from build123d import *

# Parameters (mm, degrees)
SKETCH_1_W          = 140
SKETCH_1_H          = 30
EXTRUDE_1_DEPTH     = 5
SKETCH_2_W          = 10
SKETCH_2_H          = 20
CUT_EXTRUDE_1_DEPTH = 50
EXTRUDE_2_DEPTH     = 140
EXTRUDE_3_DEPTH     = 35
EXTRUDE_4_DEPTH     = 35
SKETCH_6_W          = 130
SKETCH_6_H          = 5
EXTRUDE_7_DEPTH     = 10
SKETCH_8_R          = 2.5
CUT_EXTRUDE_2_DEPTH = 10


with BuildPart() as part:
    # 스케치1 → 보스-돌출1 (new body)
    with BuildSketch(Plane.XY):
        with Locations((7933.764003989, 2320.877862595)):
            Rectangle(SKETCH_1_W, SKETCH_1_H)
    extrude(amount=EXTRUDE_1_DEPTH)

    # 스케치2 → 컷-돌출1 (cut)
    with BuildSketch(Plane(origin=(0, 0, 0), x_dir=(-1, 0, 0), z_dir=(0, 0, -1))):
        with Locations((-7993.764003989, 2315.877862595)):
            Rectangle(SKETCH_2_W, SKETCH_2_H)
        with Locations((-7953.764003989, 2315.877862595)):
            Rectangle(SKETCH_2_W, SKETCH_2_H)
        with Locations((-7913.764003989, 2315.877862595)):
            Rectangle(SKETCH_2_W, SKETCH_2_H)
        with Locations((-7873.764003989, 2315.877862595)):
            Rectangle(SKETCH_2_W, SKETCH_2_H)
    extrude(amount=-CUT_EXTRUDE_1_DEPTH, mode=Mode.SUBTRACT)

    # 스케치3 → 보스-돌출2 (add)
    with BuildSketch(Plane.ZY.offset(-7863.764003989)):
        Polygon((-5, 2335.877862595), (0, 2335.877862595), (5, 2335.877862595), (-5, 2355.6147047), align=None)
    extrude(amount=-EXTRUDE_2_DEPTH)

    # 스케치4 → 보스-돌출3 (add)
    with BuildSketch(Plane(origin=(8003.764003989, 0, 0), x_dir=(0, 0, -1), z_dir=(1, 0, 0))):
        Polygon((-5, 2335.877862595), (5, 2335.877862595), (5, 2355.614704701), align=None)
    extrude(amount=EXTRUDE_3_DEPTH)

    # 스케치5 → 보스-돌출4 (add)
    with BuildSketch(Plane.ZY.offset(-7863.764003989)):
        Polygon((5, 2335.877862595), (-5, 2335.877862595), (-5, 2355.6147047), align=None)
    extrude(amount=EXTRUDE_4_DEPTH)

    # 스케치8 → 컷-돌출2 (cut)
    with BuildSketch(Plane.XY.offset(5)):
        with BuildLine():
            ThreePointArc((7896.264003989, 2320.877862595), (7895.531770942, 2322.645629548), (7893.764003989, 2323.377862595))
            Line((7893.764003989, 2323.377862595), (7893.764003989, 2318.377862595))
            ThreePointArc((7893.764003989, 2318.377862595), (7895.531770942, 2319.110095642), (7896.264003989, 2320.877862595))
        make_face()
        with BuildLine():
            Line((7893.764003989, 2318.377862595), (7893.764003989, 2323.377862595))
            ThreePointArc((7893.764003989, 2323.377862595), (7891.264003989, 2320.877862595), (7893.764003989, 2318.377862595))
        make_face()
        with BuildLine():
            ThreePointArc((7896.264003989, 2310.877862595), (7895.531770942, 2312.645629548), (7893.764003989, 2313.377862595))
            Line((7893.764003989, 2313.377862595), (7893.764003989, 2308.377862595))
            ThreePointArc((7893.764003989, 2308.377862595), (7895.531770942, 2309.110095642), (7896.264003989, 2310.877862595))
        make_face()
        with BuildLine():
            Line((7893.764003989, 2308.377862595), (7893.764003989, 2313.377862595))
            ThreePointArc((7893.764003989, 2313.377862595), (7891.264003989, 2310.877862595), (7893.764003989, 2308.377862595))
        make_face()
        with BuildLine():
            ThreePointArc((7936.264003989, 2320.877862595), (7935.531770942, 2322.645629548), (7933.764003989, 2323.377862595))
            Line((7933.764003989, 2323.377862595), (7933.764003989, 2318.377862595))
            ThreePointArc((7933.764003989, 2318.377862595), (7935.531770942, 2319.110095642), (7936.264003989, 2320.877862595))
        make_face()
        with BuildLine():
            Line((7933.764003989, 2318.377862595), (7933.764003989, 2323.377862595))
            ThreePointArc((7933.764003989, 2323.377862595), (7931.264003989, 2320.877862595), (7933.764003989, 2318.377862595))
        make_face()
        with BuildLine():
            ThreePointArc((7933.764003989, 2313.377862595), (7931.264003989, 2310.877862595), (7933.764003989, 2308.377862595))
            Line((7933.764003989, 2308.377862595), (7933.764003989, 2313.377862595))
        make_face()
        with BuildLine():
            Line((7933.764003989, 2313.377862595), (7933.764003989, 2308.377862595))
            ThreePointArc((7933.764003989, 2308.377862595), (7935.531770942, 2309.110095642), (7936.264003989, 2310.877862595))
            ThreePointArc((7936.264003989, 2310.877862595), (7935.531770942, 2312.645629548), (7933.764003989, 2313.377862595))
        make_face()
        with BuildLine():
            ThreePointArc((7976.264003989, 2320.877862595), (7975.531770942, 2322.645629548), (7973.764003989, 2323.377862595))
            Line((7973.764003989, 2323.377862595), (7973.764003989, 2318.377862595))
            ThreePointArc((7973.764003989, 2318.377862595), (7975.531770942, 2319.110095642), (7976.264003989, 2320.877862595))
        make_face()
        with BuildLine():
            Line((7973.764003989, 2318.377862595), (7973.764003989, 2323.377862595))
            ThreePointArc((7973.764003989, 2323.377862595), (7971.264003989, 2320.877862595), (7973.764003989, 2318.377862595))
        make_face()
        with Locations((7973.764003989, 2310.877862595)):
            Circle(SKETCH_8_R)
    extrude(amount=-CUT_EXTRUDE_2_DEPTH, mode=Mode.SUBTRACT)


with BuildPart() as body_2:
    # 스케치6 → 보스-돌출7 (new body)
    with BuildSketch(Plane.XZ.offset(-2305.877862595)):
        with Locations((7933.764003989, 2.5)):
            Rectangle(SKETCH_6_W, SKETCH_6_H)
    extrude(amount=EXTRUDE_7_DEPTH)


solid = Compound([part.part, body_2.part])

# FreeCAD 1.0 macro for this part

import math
import FreeCAD as App
import Part
import Sketcher


def add_polygon(sketch, points):
    """Adds a closed chain of lines whose ends are joined by coincident constraints."""
    first, n = sketch.GeometryCount, len(points)
    for a, b in zip(points, points[1:] + points[:1]):
        sketch.addGeometry(Part.LineSegment(App.Vector(*a, 0), App.Vector(*b, 0)), False)
    for i in range(n):
        sketch.addConstraint(Sketcher.Constraint("Coincident", first + i, 2, first + (i + 1) % n, 1))

doc = App.newDocument("Part")
params = doc.addObject("Spreadsheet::Sheet", "Params")
for row, (alias, value) in enumerate([
    ("sketch1_width", "140 mm"),
    ("sketch1_height", "30 mm"),
    ("pad1_length", "5 mm"),
    ("sketch2_width", "10 mm"),
    ("sketch2_height", "20 mm"),
    ("pocket1_length", "50 mm"),
    ("sketch3_height", "10 mm"),
    ("pad2_length", "140 mm"),
    ("sketch4_height", "10 mm"),
    ("pad3_length", "35 mm"),
    ("sketch5_height", "10 mm"),
    ("pad4_length", "35 mm"),
    ("sketch6_diameter", "5 mm"),
    ("pocket2_length", "10 mm"),
    ("sketch7_width", "130 mm"),
    ("sketch7_height", "5 mm"),
    ("pad5_length", "10 mm"),
], start=1):
    params.set(f"A{row}", alias)
    params.set(f"B{row}", "=" + value)
    params.setAlias(f"B{row}", alias)

body = doc.addObject("PartDesign::Body", "Body")

sketch1 = doc.addObject("Sketcher::SketchObject", "Sketch")
body.addObject(sketch1)
sketch1.AttachmentSupport = (doc.XY_Plane, [""])
sketch1.MapMode = "FlatFace"
add_polygon(sketch1, [(7864, 2336), (7864, 2306), (8004, 2306), (8004, 2336)])
sketch1.addConstraint([
    Sketcher.Constraint("Vertical", 0),
    Sketcher.Constraint("Horizontal", 1),
    Sketcher.Constraint("Vertical", 2),
    Sketcher.Constraint("Horizontal", 3),
    Sketcher.Constraint("DistanceX", 1, 1, 1, 2, 140.0),
    Sketcher.Constraint("DistanceY", 0, 2, 0, 1, 30.0),
    Sketcher.Constraint("DistanceX", -1, 1, 0, 2, 7863.764004),
    Sketcher.Constraint("DistanceY", -1, 1, 0, 2, 2305.877863),
])
sketch1.setExpression("Constraints[8]", "Params.sketch1_width")
sketch1.setExpression("Constraints[9]", "Params.sketch1_height")
pad1 = doc.addObject("PartDesign::Pad", "Pad")
body.addObject(pad1)
pad1.Profile = sketch1
pad1.setExpression("Length", "Params.pad1_length")

sketch2 = doc.addObject("Sketcher::SketchObject", "Sketch001")
body.addObject(sketch2)
sketch2.AttachmentSupport = (doc.XY_Plane, [""])
sketch2.MapMode = "FlatFace"
add_polygon(sketch2, [(7999, 2326), (7999, 2306), (7989, 2306), (7989, 2326)])
add_polygon(sketch2, [(7959, 2326), (7959, 2306), (7949, 2306), (7949, 2326)])
add_polygon(sketch2, [(7919, 2326), (7919, 2306), (7909, 2306), (7909, 2326)])
add_polygon(sketch2, [(7879, 2326), (7879, 2306), (7869, 2306), (7869, 2326)])
sketch2.addConstraint([
    Sketcher.Constraint("Vertical", 0),
    Sketcher.Constraint("Horizontal", 1),
    Sketcher.Constraint("Vertical", 2),
    Sketcher.Constraint("Horizontal", 3),
    Sketcher.Constraint("Vertical", 4),
    Sketcher.Constraint("Horizontal", 5),
    Sketcher.Constraint("Vertical", 6),
    Sketcher.Constraint("Horizontal", 7),
    Sketcher.Constraint("Vertical", 8),
    Sketcher.Constraint("Horizontal", 9),
    Sketcher.Constraint("Vertical", 10),
    Sketcher.Constraint("Horizontal", 11),
    Sketcher.Constraint("Vertical", 12),
    Sketcher.Constraint("Horizontal", 13),
    Sketcher.Constraint("Vertical", 14),
    Sketcher.Constraint("Horizontal", 15),
    Sketcher.Constraint("Horizontal", 1, 2, 4, 2),
    Sketcher.Constraint("Horizontal", 3, 2, 6, 2),
    Sketcher.Constraint("Horizontal", 5, 2, 8, 2),
    Sketcher.Constraint("Horizontal", 7, 2, 10, 2),
    Sketcher.Constraint("Horizontal", 9, 2, 12, 2),
    Sketcher.Constraint("Horizontal", 11, 2, 14, 2),
    Sketcher.Constraint("Equal", 3, 5),
    Sketcher.Constraint("Equal", 7, 9),
    Sketcher.Constraint("Equal", 11, 13),
    Sketcher.Constraint("DistanceX", 1, 2, 1, 1, 10.0),
    Sketcher.Constraint("DistanceY", 0, 2, 0, 1, 20.0),
    Sketcher.Constraint("DistanceX", 4, 2, 1, 2, 30.0),
    Sketcher.Constraint("DistanceX", 8, 2, 5, 2, 30.0),
    Sketcher.Constraint("DistanceX", 12, 2, 9, 2, 30.0),
    Sketcher.Constraint("DistanceX", -1, 1, 0, 2, 7998.764004),
    Sketcher.Constraint("DistanceY", -1, 1, 0, 2, 2305.877863),
])
sketch2.setExpression("Constraints[41]", "Params.sketch2_width")
sketch2.setExpression("Constraints[42]", "Params.sketch2_height")
pocket1 = doc.addObject("PartDesign::Pocket", "Pocket")
body.addObject(pocket1)
pocket1.Profile = sketch2
pocket1.setExpression("Length", "Params.pocket1_length")
pocket1.Reversed = True

sketch3 = doc.addObject("Sketcher::SketchObject", "Sketch002")
body.addObject(sketch3)
sketch3.AttachmentSupport = (doc.YZ_Plane, [""])
sketch3.MapMode = "FlatFace"
sketch3.AttachmentOffset = App.Placement(App.Vector(0, 0, 7863.764004), App.Rotation())
add_polygon(sketch3, [(2336, -5), (2336, 5), (2356, -5)])
sketch3.addConstraint([
    Sketcher.Constraint("Vertical", 0),
    Sketcher.Constraint("Horizontal", 2),
    Sketcher.Constraint("DistanceY", 0, 1, 0, 2, 10.0),
    Sketcher.Constraint("DistanceY", -1, 1, 0, 2, 5.0),
    Sketcher.Constraint("DistanceX", 2, 2, 2, 1, 19.736842),
    Sketcher.Constraint("DistanceX", -1, 1, 0, 2, 2335.877863),
])
sketch3.setExpression("Constraints[5]", "Params.sketch3_height")
pad2 = doc.addObject("PartDesign::Pad", "Pad001")
body.addObject(pad2)
pad2.Profile = sketch3
pad2.setExpression("Length", "Params.pad2_length")

sketch4 = doc.addObject("Sketcher::SketchObject", "Sketch003")
body.addObject(sketch4)
sketch4.AttachmentSupport = (doc.YZ_Plane, [""])
sketch4.MapMode = "FlatFace"
sketch4.AttachmentOffset = App.Placement(App.Vector(0, 0, 8003.764004), App.Rotation())
add_polygon(sketch4, [(2336, 5), (2336, -5), (2356, -5)])
sketch4.addConstraint([
    Sketcher.Constraint("Vertical", 0),
    Sketcher.Constraint("Horizontal", 1),
    Sketcher.Constraint("DistanceY", 0, 2, 0, 1, 10.0),
    Sketcher.Constraint("DistanceY", 0, 2, -1, 1, 5.0),
    Sketcher.Constraint("DistanceX", 1, 1, 1, 2, 19.736842),
    Sketcher.Constraint("DistanceX", -1, 1, 0, 2, 2335.877863),
])
sketch4.setExpression("Constraints[5]", "Params.sketch4_height")
pad3 = doc.addObject("PartDesign::Pad", "Pad002")
body.addObject(pad3)
pad3.Profile = sketch4
pad3.setExpression("Length", "Params.pad3_length")

sketch5 = doc.addObject("Sketcher::SketchObject", "Sketch004")
body.addObject(sketch5)
sketch5.AttachmentSupport = (doc.YZ_Plane, [""])
sketch5.MapMode = "FlatFace"
sketch5.AttachmentOffset = App.Placement(App.Vector(0, 0, 7863.764004), App.Rotation())
add_polygon(sketch5, [(2336, -5), (2336, 5), (2356, -5)])
sketch5.addConstraint([
    Sketcher.Constraint("Vertical", 0),
    Sketcher.Constraint("Horizontal", 2),
    Sketcher.Constraint("DistanceY", 0, 1, 0, 2, 10.0),
    Sketcher.Constraint("DistanceY", -1, 1, 0, 2, 5.0),
    Sketcher.Constraint("DistanceX", 2, 2, 2, 1, 19.736842),
    Sketcher.Constraint("DistanceX", -1, 1, 0, 2, 2335.877863),
])
sketch5.setExpression("Constraints[5]", "Params.sketch5_height")
pad4 = doc.addObject("PartDesign::Pad", "Pad003")
body.addObject(pad4)
pad4.Profile = sketch5
pad4.setExpression("Length", "Params.pad4_length")
pad4.Reversed = True

sketch6 = doc.addObject("Sketcher::SketchObject", "Sketch005")
body.addObject(sketch6)
sketch6.AttachmentSupport = (doc.XY_Plane, [""])
sketch6.MapMode = "FlatFace"
sketch6.AttachmentOffset = App.Placement(App.Vector(0, 0, 5), App.Rotation())
sketch6.addGeometry([
    Part.ArcOfCircle(Part.Circle(App.Vector(7893.8, 2320.9, 0), App.Vector(0, 0, 1), 2.5), math.radians(0), math.radians(90)),
    Part.ArcOfCircle(Part.Circle(App.Vector(7893.8, 2320.9, 0), App.Vector(0, 0, 1), 2.5), math.radians(90), math.radians(270)),
    Part.ArcOfCircle(Part.Circle(App.Vector(7893.8, 2320.9, 0), App.Vector(0, 0, 1), 2.5), math.radians(-90), math.radians(0)),
    Part.ArcOfCircle(Part.Circle(App.Vector(7893.8, 2310.9, 0), App.Vector(0, 0, 1), 2.5), math.radians(0), math.radians(90)),
    Part.ArcOfCircle(Part.Circle(App.Vector(7893.8, 2310.9, 0), App.Vector(0, 0, 1), 2.5), math.radians(90), math.radians(270)),
    Part.ArcOfCircle(Part.Circle(App.Vector(7893.8, 2310.9, 0), App.Vector(0, 0, 1), 2.5), math.radians(-90), math.radians(0)),
    Part.ArcOfCircle(Part.Circle(App.Vector(7933.8, 2320.9, 0), App.Vector(0, 0, 1), 2.5), math.radians(0), math.radians(90)),
    Part.ArcOfCircle(Part.Circle(App.Vector(7933.8, 2320.9, 0), App.Vector(0, 0, 1), 2.5), math.radians(90), math.radians(270)),
    Part.ArcOfCircle(Part.Circle(App.Vector(7933.8, 2320.9, 0), App.Vector(0, 0, 1), 2.5), math.radians(-90), math.radians(0)),
    Part.ArcOfCircle(Part.Circle(App.Vector(7933.8, 2310.9, 0), App.Vector(0, 0, 1), 2.5), math.radians(90), math.radians(270)),
    Part.ArcOfCircle(Part.Circle(App.Vector(7933.8, 2310.9, 0), App.Vector(0, 0, 1), 2.5), math.radians(-90), math.radians(0)),
    Part.ArcOfCircle(Part.Circle(App.Vector(7933.8, 2310.9, 0), App.Vector(0, 0, 1), 2.5), math.radians(0), math.radians(90)),
    Part.ArcOfCircle(Part.Circle(App.Vector(7973.8, 2320.9, 0), App.Vector(0, 0, 1), 2.5), math.radians(0), math.radians(90)),
    Part.ArcOfCircle(Part.Circle(App.Vector(7973.8, 2320.9, 0), App.Vector(0, 0, 1), 2.5), math.radians(90), math.radians(270)),
    Part.ArcOfCircle(Part.Circle(App.Vector(7973.8, 2320.9, 0), App.Vector(0, 0, 1), 2.5), math.radians(-90), math.radians(0)),
    Part.Circle(App.Vector(7973.8, 2310.9, 0), App.Vector(0, 0, 1), 2.5),
], False)
sketch6.addConstraint([
    Sketcher.Constraint("Tangent", 0, 2, 1, 1),
    Sketcher.Constraint("Tangent", 1, 2, 2, 1),
    Sketcher.Constraint("Tangent", 2, 2, 0, 1),
    Sketcher.Constraint("Tangent", 3, 2, 4, 1),
    Sketcher.Constraint("Tangent", 4, 2, 5, 1),
    Sketcher.Constraint("Tangent", 5, 2, 3, 1),
    Sketcher.Constraint("Tangent", 6, 2, 7, 1),
    Sketcher.Constraint("Tangent", 7, 2, 8, 1),
    Sketcher.Constraint("Tangent", 8, 2, 6, 1),
    Sketcher.Constraint("Tangent", 9, 2, 10, 1),
    Sketcher.Constraint("Tangent", 10, 2, 11, 1),
    Sketcher.Constraint("Tangent", 11, 2, 9, 1),
    Sketcher.Constraint("Tangent", 12, 2, 13, 1),
    Sketcher.Constraint("Tangent", 13, 2, 14, 1),
    Sketcher.Constraint("Tangent", 14, 2, 12, 1),
    Sketcher.Constraint("Equal", 2, 3),
    Sketcher.Constraint("Equal", 5, 6),
    Sketcher.Constraint("Equal", 8, 9),
    Sketcher.Constraint("Equal", 11, 12),
    Sketcher.Constraint("Equal", 14, 15),
    Sketcher.Constraint("Horizontal", 2, 3, 6, 3),
    Sketcher.Constraint("Horizontal", 5, 3, 9, 3),
    Sketcher.Constraint("Horizontal", 8, 3, 12, 3),
    Sketcher.Constraint("Horizontal", 11, 3, 15, 3),
    Sketcher.Constraint("Horizontal", 14, 3, 2, 2),
    Sketcher.Constraint("Horizontal", 15, 3, 5, 2),
    Sketcher.Constraint("Horizontal", 2, 2, 8, 2),
    Sketcher.Constraint("Horizontal", 5, 2, 10, 2),
    Sketcher.Constraint("Horizontal", 8, 2, 14, 2),
    Sketcher.Constraint("Vertical", 2, 3, 3, 3),
    Sketcher.Constraint("Vertical", 8, 3, 9, 3),
    Sketcher.Constraint("Vertical", 14, 3, 15, 3),
    Sketcher.Constraint("Vertical", 5, 3, 0, 2),
    Sketcher.Constraint("Vertical", 0, 2, 1, 2),
    Sketcher.Constraint("Vertical", 1, 2, 3, 2),
    Sketcher.Constraint("Vertical", 3, 2, 4, 2),
    Sketcher.Constraint("Vertical", 11, 3, 6, 2),
    Sketcher.Constraint("Vertical", 6, 2, 7, 2),
    Sketcher.Constraint("Vertical", 7, 2, 9, 2),
    Sketcher.Constraint("Vertical", 9, 2, 11, 2),
    Sketcher.Constraint("Vertical", 15, 3, 12, 2),
    Sketcher.Constraint("Vertical", 12, 2, 13, 2),
    Sketcher.Constraint("Diameter", 15, 5.0),
    Sketcher.Constraint("DistanceY", 3, 3, 0, 3, 10.0),
    Sketcher.Constraint("DistanceX", 0, 3, 6, 3, 40.0),
    Sketcher.Constraint("DistanceX", 6, 3, 12, 3, 40.0),
    Sketcher.Constraint("DistanceX", -1, 1, 0, 3, 7893.764004),
    Sketcher.Constraint("DistanceY", -1, 1, 0, 3, 2320.877863),
])
sketch6.setExpression("Constraints[42]", "Params.sketch6_diameter")
pocket2 = doc.addObject("PartDesign::Pocket", "Pocket001")
body.addObject(pocket2)
pocket2.Profile = sketch6
pocket2.setExpression("Length", "Params.pocket2_length")
body2 = doc.addObject("PartDesign::Body", "Body001")

sketch7 = doc.addObject("Sketcher::SketchObject", "Sketch006")
body2.addObject(sketch7)
sketch7.AttachmentSupport = (doc.getObject("XZ_Plane001"), [""])
sketch7.MapMode = "FlatFace"
sketch7.AttachmentOffset = App.Placement(App.Vector(0, 0, -2305.877863), App.Rotation())
add_polygon(sketch7, [(7869, 5), (7869, 0), (7999, 0), (7999, 5)])
sketch7.addConstraint([
    Sketcher.Constraint("Vertical", 0),
    Sketcher.Constraint("Horizontal", 1),
    Sketcher.Constraint("Vertical", 2),
    Sketcher.Constraint("Horizontal", 3),
    Sketcher.Constraint("PointOnObject", 0, 2, -1),
    Sketcher.Constraint("DistanceX", 1, 1, 1, 2, 130.0),
    Sketcher.Constraint("DistanceY", 0, 2, 0, 1, 5.0),
    Sketcher.Constraint("DistanceX", -1, 1, 0, 2, 7868.764004),
])
sketch7.setExpression("Constraints[9]", "Params.sketch7_width")
sketch7.setExpression("Constraints[10]", "Params.sketch7_height")
pad5 = doc.addObject("PartDesign::Pad", "Pad004")
body2.addObject(pad5)
pad5.Profile = sketch7
pad5.setExpression("Length", "Params.pad5_length")

doc.recompute()
